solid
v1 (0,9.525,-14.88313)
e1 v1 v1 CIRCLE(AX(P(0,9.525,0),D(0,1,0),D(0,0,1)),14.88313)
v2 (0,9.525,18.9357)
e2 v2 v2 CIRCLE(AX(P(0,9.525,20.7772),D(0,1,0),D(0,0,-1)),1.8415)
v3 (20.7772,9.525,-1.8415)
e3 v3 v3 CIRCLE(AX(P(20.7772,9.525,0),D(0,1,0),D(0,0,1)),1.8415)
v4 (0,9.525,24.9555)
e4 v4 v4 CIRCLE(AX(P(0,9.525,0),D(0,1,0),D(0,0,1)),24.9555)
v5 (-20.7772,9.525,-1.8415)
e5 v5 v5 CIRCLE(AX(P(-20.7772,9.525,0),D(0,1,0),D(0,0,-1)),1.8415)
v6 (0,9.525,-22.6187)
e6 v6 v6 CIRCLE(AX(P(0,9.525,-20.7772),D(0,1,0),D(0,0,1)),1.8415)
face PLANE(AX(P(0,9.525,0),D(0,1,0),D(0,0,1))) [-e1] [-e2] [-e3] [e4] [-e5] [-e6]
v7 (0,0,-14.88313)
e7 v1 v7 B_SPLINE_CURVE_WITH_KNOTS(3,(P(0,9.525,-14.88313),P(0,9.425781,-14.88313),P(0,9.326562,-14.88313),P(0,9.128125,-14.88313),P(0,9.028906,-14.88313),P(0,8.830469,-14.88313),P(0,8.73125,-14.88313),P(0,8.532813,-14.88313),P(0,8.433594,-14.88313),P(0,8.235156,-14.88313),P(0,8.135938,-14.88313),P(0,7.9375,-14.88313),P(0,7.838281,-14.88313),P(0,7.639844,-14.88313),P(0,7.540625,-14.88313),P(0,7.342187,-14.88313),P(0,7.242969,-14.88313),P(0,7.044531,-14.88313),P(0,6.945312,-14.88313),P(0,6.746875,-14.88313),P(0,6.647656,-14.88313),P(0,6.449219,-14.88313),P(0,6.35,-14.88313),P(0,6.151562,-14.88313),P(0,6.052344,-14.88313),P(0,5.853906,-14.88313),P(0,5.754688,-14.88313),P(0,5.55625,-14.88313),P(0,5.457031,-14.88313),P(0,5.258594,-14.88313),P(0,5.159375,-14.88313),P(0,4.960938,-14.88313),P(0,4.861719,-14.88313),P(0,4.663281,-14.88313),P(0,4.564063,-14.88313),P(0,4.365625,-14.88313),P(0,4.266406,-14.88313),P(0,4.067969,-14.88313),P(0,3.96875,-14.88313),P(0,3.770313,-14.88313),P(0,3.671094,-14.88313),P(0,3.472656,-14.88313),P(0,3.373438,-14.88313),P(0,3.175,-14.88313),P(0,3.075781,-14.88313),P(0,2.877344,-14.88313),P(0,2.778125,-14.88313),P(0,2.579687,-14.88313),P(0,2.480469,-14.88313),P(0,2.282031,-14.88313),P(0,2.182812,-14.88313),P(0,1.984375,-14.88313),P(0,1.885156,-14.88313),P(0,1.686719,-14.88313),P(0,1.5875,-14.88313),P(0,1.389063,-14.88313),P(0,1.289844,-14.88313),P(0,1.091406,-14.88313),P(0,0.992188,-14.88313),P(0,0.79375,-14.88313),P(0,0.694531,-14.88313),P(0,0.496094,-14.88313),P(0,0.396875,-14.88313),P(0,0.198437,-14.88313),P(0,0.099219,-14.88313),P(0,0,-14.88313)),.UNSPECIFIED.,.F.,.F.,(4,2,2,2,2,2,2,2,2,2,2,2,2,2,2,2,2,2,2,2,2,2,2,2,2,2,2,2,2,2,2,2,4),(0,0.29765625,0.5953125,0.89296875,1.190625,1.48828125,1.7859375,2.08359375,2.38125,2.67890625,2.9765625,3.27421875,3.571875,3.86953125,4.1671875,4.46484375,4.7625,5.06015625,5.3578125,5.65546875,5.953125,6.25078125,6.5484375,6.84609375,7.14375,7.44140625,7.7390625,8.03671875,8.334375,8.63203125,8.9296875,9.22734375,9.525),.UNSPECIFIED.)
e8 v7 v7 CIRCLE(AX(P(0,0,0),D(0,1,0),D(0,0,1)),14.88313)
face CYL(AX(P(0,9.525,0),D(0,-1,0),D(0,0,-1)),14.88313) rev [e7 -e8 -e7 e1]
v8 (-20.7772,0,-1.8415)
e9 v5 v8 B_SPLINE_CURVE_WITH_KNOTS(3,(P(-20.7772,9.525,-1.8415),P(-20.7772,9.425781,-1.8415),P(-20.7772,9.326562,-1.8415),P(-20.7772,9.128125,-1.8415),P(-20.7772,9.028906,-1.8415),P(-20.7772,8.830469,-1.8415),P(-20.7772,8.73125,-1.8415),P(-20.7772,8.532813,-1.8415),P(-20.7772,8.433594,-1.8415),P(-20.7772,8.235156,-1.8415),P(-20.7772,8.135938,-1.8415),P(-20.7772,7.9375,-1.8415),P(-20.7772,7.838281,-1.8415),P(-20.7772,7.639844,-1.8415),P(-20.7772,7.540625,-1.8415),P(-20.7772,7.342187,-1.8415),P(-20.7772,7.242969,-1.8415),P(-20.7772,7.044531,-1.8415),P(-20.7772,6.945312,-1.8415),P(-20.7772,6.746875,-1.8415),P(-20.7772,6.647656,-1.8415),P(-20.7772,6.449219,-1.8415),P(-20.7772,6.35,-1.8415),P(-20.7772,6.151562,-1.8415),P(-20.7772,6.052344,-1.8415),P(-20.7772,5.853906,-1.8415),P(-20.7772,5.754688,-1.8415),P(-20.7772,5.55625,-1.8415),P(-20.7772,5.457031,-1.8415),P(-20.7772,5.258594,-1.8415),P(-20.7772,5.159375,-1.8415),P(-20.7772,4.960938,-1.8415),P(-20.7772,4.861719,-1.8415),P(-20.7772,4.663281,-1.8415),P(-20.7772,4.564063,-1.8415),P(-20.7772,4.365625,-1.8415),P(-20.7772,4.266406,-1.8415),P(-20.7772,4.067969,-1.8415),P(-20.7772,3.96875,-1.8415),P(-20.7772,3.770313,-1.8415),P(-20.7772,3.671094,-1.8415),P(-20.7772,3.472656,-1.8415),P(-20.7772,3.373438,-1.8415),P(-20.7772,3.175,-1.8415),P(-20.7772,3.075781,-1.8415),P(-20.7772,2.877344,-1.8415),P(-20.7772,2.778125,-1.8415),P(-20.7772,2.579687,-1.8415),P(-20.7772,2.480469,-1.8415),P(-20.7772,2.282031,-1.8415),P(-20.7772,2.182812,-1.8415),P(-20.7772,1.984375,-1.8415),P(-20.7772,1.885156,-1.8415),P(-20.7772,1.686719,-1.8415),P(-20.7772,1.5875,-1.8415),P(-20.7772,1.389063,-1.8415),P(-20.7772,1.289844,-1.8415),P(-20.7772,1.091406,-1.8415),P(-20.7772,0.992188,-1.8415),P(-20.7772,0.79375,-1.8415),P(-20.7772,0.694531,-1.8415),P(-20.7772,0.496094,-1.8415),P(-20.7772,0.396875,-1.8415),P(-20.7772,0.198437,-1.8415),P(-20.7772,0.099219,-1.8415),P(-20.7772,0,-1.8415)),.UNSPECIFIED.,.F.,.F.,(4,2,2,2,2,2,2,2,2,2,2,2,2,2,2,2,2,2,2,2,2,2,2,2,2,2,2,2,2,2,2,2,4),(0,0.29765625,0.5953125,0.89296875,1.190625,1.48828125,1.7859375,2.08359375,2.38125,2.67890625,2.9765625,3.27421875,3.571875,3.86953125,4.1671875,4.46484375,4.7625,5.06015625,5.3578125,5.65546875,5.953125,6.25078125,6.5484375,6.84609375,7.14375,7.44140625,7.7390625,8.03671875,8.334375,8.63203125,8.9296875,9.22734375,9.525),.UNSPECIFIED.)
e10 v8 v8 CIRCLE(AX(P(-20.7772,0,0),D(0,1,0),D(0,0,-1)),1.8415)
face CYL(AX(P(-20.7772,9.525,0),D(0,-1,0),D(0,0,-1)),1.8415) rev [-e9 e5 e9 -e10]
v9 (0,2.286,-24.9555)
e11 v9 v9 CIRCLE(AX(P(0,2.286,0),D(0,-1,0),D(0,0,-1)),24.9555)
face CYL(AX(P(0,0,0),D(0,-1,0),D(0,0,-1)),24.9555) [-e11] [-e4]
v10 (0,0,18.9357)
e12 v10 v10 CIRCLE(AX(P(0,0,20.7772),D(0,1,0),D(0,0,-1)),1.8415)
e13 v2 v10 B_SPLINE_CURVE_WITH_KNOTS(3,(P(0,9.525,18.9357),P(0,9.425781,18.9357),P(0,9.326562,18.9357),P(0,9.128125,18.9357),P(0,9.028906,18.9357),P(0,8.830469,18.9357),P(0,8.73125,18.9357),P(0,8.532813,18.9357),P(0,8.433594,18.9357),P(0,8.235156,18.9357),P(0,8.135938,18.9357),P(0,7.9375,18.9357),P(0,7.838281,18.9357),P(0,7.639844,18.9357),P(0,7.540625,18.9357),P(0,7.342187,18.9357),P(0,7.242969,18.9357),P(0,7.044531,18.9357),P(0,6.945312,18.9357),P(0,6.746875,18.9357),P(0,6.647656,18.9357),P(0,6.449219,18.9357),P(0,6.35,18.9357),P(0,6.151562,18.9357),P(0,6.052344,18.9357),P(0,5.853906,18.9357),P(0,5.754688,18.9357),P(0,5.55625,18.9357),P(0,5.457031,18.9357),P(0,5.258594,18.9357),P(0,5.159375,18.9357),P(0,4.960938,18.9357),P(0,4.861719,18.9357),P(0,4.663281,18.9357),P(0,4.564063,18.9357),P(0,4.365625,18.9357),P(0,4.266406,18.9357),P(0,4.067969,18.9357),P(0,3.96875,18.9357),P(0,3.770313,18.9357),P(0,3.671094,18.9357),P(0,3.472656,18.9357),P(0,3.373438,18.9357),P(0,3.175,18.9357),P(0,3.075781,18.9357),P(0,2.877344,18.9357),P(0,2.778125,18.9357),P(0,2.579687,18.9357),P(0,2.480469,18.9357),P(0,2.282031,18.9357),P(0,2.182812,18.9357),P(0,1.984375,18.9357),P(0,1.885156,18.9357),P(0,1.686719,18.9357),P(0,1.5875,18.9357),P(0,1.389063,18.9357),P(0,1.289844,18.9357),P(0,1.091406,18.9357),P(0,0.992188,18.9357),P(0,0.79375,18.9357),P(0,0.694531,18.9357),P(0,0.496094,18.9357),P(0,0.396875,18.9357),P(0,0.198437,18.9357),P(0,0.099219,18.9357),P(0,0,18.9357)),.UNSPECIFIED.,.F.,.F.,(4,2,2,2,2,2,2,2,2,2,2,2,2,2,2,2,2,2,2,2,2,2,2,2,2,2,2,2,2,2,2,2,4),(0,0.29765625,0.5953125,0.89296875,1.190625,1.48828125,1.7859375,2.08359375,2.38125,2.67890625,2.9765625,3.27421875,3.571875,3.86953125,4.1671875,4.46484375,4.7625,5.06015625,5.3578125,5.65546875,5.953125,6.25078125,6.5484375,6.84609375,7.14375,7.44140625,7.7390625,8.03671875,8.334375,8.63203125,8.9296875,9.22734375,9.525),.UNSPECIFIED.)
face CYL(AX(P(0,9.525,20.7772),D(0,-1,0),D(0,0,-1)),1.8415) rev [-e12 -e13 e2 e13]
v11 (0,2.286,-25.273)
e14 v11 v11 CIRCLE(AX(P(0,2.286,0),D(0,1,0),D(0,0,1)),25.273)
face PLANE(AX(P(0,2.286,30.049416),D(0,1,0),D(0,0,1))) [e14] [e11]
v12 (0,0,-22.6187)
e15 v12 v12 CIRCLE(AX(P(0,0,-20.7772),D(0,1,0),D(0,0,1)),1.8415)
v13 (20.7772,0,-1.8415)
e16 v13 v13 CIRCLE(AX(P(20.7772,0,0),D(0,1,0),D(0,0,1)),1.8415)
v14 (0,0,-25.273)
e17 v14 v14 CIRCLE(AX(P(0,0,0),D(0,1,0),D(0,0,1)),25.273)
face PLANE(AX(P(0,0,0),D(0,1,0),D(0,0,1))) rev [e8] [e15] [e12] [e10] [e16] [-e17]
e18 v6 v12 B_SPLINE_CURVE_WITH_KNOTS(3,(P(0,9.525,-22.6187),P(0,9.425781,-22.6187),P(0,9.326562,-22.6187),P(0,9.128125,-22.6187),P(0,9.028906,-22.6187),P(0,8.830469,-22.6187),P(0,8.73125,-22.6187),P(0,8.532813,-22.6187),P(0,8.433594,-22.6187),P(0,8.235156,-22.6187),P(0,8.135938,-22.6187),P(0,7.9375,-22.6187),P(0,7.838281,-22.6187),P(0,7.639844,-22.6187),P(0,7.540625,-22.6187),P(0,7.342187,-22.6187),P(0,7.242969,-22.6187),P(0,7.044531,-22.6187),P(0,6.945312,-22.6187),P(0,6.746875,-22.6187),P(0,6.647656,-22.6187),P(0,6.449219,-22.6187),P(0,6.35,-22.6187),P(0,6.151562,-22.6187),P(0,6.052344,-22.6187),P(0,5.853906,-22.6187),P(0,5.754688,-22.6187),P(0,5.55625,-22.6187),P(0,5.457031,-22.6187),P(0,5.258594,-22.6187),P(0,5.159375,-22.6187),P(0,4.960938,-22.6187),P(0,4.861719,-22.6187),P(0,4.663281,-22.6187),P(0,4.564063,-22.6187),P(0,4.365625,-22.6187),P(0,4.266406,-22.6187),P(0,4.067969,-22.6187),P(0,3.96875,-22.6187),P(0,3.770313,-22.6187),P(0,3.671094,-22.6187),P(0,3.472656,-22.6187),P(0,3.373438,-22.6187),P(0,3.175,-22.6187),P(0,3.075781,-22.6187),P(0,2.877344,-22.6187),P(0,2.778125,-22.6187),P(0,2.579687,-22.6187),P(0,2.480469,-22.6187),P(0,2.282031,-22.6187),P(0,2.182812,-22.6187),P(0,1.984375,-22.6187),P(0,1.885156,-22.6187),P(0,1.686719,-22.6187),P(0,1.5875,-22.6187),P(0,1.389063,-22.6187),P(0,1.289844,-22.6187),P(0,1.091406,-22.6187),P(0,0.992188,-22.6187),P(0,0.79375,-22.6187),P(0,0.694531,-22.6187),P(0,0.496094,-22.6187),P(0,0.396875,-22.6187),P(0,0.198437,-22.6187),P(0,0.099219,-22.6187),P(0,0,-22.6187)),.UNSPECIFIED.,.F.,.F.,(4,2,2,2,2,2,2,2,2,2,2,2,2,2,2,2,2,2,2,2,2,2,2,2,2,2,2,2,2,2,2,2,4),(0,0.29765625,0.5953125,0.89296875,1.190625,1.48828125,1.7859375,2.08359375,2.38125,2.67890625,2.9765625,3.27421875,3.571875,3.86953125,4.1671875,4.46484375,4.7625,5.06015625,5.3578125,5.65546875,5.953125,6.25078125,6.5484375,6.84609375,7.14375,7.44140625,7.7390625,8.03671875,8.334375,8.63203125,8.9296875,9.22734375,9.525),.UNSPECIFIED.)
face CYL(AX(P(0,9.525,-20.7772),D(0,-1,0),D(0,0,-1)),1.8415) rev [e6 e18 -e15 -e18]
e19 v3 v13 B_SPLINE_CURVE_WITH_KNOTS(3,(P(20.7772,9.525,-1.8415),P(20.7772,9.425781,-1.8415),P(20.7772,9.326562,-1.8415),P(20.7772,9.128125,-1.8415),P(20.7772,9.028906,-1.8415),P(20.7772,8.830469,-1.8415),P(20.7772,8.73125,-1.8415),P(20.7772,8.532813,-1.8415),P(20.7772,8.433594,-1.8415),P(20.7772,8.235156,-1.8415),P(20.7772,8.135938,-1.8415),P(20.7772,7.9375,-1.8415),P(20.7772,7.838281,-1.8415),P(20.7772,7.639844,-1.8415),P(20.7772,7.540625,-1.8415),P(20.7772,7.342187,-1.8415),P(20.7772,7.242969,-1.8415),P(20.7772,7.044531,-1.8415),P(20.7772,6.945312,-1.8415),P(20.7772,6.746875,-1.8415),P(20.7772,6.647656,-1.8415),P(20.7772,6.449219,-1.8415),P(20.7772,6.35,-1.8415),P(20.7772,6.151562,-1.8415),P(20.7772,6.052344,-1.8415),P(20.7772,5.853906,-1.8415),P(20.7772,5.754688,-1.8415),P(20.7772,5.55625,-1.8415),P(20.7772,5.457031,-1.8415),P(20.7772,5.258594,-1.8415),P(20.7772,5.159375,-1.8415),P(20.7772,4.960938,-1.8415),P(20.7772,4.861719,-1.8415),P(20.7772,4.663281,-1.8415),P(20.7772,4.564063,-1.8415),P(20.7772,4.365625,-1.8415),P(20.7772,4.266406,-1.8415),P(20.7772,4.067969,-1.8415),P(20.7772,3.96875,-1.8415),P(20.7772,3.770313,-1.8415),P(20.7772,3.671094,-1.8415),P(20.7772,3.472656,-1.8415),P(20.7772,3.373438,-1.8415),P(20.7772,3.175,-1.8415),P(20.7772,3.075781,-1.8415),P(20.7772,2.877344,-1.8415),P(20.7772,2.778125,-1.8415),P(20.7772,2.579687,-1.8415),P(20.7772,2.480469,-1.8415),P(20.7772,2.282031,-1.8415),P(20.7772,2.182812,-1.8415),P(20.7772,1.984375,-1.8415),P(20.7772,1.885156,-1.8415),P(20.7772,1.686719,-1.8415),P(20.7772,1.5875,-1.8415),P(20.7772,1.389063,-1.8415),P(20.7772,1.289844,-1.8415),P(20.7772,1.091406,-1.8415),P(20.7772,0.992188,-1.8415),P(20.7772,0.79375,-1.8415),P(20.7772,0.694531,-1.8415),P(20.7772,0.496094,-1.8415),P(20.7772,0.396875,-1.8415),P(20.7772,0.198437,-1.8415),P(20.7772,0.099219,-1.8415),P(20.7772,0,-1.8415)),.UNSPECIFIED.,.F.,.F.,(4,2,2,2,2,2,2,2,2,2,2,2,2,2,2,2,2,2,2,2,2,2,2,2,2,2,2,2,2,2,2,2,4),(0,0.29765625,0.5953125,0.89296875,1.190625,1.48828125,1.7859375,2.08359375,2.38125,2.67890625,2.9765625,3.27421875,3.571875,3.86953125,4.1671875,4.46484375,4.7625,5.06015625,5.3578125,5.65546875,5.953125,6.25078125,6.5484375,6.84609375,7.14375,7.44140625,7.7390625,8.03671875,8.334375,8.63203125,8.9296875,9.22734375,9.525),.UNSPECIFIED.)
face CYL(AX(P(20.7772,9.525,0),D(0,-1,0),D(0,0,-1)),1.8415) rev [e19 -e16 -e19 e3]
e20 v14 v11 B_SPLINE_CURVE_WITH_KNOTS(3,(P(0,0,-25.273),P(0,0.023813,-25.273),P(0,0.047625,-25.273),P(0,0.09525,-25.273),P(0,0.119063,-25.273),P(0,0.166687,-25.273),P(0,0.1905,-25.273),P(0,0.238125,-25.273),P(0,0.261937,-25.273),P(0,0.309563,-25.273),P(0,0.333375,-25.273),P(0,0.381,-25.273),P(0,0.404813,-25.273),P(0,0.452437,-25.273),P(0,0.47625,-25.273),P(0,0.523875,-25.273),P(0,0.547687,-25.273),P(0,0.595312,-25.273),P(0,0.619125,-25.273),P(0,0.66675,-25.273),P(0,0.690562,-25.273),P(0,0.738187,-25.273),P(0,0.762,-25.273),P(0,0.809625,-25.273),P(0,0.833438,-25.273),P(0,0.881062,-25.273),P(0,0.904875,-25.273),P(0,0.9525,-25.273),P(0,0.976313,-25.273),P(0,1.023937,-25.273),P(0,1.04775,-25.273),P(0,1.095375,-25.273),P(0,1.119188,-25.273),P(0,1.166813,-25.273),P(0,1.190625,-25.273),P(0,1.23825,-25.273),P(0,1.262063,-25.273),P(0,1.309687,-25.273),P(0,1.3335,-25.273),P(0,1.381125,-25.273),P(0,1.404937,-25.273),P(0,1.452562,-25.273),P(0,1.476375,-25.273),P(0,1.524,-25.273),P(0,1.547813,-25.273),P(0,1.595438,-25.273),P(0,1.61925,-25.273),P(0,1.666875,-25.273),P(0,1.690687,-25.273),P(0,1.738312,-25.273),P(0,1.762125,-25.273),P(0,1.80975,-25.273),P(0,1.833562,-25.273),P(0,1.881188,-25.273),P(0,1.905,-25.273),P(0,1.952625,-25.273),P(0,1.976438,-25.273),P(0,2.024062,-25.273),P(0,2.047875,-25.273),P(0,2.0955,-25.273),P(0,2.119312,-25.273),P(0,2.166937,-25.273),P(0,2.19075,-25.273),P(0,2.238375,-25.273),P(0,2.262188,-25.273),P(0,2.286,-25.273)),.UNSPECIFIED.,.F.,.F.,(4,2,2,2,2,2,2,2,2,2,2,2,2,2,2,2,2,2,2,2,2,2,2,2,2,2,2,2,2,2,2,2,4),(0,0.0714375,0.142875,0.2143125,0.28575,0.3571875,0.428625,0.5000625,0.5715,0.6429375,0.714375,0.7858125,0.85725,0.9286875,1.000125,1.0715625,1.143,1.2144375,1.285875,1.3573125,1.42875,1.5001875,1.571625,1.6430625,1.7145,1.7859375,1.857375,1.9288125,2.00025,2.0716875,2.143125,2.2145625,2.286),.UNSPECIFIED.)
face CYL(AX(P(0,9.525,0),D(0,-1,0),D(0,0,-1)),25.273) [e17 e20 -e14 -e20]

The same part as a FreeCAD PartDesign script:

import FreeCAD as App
import Part
import Sketcher

V = App.Vector
Q = App.Units.Quantity


def add_polygon(sketch, points):
    """Adds a closed chain of lines whose ends are joined by coincident constraints."""
    first, n = sketch.GeometryCount, len(points)
    for a, b in zip(points, points[1:] + points[:1]):
        sketch.addGeometry(Part.LineSegment(App.Vector(*a, 0), App.Vector(*b, 0)), False)
    for i in range(n):
        sketch.addConstraint(Sketcher.Constraint("Coincident", first + i, 2, first + (i + 1) % n, 1))

doc = App.newDocument("Part")
body = doc.addObject("PartDesign::Body", "Body")

sketch1 = body.newObject("Sketcher::SketchObject", "Sketch")
sketch1.AttachmentSupport = (doc.getObject("XZ_Plane"), [""])
sketch1.MapMode = "FlatFace"
sketch1.addGeometry([
    Part.Circle(V(0, 0, 0), V(0, 0, 1), 25.3),
    Part.Circle(V(0, 20.8, 0), V(0, 0, 1), 1.8),
    Part.Circle(V(20.8, 0, 0), V(0, 0, 1), 1.8),
    Part.Circle(V(0, 0, 0), V(0, 0, 1), 14.9),
    Part.Circle(V(-20.8, 0, 0), V(0, 0, 1), 1.8),
    Part.Circle(V(0, -20.8, 0), V(0, 0, 1), 1.8),
], False)
sketch1.addConstraint([
    Sketcher.Constraint("Coincident", 0, 3, -1, 1),
    Sketcher.Constraint("Coincident", 3, 3, -1, 1),
    Sketcher.Constraint("Equal", 1, 2),
    Sketcher.Constraint("Equal", 2, 4),
    Sketcher.Constraint("Equal", 4, 5),
    Sketcher.Constraint("Symmetric", 2, 3, 4, 3, -1, 1),
    Sketcher.Constraint("Symmetric", 1, 3, 5, 3, -1, 1),
    Sketcher.Constraint("PointOnObject", 1, 3, -2),
    Sketcher.Constraint("PointOnObject", 2, 3, -1),
    Sketcher.Constraint("Diameter", 0, Q("1.99 in")),
    Sketcher.Constraint("Diameter", 1, Q("0.145 in")),
    Sketcher.Constraint("Diameter", 3, Q("1.1719 in")),
    Sketcher.Constraint("DistanceY", -1, 1, 1, 3, Q("0.818 in")),
    Sketcher.Constraint("DistanceX", -1, 1, 2, 3, Q("0.818 in")),
])
pad1 = body.newObject("PartDesign::Pad", "Pad")
pad1.Profile = sketch1
pad1.Length = Q("0.375 in")
pad1.Reversed = True

sketch2 = body.newObject("Sketcher::SketchObject", "Sketch001")
sketch2.AttachmentSupport = (doc.getObject("YZ_Plane"), [""])
sketch2.MapMode = "FlatFace"
add_polygon(sketch2, [(14, 30), (2, 30), (2, 25), (14, 25)])
sketch2.addConstraint([
    Sketcher.Constraint("Horizontal", 0),
    Sketcher.Constraint("Vertical", 1),
    Sketcher.Constraint("Horizontal", 2),
    Sketcher.Constraint("Vertical", 3),
    Sketcher.Constraint("DistanceX", -1, 1, 0, 2, Q("0.09 in")),
    Sketcher.Constraint("DistanceY", -1, 1, 1, 2, Q("0.9825 in")),
    Sketcher.Constraint("DistanceX", 0, 2, 0, 1, Q("11.293845 mm")),
    Sketcher.Constraint("DistanceY", 1, 2, 1, 1, Q("5.093916 mm")),
])
groove = body.newObject("PartDesign::Groove", "Groove")
groove.Profile = sketch2
groove.ReferenceAxis = (sketch2, ["H_Axis"])
groove.Angle = 360

doc.recompute()
